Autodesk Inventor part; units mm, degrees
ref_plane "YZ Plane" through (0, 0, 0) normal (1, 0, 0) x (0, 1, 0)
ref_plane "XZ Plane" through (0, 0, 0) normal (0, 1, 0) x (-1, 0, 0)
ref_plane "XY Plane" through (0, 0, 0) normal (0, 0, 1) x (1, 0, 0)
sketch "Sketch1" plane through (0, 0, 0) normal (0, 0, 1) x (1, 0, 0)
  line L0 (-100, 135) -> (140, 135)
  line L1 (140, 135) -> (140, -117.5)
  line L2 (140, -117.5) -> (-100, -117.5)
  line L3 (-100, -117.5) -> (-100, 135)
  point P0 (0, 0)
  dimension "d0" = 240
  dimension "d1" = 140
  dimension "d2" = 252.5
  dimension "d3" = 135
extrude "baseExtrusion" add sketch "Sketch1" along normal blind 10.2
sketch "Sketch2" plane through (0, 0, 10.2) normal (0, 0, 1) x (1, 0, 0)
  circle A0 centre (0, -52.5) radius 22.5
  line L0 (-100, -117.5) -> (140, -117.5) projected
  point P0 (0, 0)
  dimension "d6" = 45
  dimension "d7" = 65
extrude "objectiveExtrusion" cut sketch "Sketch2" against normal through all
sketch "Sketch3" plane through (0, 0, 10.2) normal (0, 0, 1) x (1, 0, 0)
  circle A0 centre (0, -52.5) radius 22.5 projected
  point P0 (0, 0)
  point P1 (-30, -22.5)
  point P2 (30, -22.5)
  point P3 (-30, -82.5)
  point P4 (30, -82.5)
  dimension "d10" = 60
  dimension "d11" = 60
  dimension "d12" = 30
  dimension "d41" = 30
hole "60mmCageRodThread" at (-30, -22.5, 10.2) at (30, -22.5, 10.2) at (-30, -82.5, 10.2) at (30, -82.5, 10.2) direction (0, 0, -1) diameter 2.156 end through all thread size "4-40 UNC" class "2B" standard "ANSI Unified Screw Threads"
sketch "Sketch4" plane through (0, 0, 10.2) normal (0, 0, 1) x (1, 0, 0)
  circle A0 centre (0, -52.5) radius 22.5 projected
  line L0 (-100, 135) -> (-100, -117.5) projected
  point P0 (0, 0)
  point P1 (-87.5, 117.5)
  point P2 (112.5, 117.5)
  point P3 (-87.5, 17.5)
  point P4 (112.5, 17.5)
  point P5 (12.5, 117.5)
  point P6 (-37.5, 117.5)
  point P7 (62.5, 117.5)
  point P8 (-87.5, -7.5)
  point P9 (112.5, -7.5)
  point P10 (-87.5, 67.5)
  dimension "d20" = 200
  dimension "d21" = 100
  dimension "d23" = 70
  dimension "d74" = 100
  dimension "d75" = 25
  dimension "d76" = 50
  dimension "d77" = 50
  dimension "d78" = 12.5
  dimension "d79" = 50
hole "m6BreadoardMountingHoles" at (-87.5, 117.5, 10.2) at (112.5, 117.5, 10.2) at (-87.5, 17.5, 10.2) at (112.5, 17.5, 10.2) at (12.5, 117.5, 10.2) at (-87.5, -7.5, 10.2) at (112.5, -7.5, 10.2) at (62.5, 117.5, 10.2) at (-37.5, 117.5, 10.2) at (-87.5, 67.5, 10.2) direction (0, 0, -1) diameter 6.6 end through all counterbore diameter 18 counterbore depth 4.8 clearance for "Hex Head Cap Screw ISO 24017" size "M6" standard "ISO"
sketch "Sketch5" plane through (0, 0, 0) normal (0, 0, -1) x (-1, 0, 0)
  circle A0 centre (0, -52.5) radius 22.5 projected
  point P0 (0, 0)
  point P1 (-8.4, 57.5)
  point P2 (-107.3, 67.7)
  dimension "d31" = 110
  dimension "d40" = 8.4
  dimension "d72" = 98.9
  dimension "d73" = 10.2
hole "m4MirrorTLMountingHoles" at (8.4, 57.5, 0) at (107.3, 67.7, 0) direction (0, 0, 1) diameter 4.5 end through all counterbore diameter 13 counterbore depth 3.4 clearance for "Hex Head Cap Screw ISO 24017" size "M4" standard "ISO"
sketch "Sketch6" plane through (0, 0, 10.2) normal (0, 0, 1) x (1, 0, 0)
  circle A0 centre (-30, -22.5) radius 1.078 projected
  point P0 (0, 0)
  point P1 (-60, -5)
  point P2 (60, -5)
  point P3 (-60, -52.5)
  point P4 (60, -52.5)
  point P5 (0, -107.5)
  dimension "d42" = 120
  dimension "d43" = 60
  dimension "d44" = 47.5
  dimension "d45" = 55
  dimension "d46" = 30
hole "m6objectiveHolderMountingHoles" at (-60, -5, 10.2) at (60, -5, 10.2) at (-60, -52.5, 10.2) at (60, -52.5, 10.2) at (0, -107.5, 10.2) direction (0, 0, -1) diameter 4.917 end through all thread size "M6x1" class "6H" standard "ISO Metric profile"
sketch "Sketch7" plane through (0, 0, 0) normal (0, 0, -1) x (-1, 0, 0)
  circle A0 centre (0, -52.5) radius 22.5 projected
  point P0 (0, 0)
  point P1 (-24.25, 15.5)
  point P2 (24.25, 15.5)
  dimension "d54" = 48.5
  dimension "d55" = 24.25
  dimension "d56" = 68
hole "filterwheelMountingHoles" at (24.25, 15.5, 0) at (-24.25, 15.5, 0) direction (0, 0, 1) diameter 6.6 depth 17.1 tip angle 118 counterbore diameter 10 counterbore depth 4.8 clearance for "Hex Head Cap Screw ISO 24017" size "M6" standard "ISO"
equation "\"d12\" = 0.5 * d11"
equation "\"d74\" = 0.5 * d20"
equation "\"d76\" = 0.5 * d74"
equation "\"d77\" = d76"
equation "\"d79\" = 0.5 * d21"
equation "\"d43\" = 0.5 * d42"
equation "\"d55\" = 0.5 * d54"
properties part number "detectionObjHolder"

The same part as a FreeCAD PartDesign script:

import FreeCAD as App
import Part
import Sketcher
Q = App.Units.Quantity

doc = App.newDocument("Part")
body = doc.addObject("PartDesign::Body", "Body")

sketch1 = body.newObject("Sketcher::SketchObject", "Sketch")
sketch1.AttachmentSupport = (doc.getObject("XY_Plane"), [""])
sketch1.MapMode = "FlatFace"
sketch1.addGeometry(Part.LineSegment(App.Vector(140, 135, 0), App.Vector(-100, 135, 0)), False)
sketch1.addGeometry(Part.LineSegment(App.Vector(-100, 135, 0), App.Vector(-100, -118, 0)), False)
sketch1.addGeometry(Part.LineSegment(App.Vector(-100, -118, 0), App.Vector(140, -118, 0)), False)
sketch1.addGeometry(Part.LineSegment(App.Vector(140, -118, 0), App.Vector(140, 135, 0)), False)
sketch1.addConstraint(Sketcher.Constraint("Coincident", 0, 2, 1, 1))
sketch1.addConstraint(Sketcher.Constraint("Coincident", 1, 2, 2, 1))
sketch1.addConstraint(Sketcher.Constraint("Coincident", 2, 2, 3, 1))
sketch1.addConstraint(Sketcher.Constraint("Coincident", 3, 2, 0, 1))
sketch1.addConstraint(Sketcher.Constraint("Horizontal", 0))
sketch1.addConstraint(Sketcher.Constraint("Vertical", 1))
sketch1.addConstraint(Sketcher.Constraint("Horizontal", 2))
sketch1.addConstraint(Sketcher.Constraint("Vertical", 3))
sketch1.addConstraint(Sketcher.Constraint("DistanceX", 0, 2, 0, 1, Q("240 mm")))
sketch1.addConstraint(Sketcher.Constraint("DistanceY", 1, 2, 1, 1, Q("252.5 mm")))
sketch1.addConstraint(Sketcher.Constraint("DistanceY", -1, 1, 0, 2, Q("135 mm")))
sketch1.addConstraint(Sketcher.Constraint("DistanceX", -1, 1, 2, 2, Q("140 mm")))
pad1 = body.newObject("PartDesign::Pad", "Pad")
pad1.Profile = sketch1
pad1.Length = 10.2

sketch2 = body.newObject("Sketcher::SketchObject", "Sketch001")
sketch2.AttachmentSupport = (doc.getObject("XY_Plane"), [""])
sketch2.MapMode = "FlatFace"
sketch2.AttachmentOffset = App.Placement(App.Vector(0, 0, 10.2), App.Rotation())
sketch2.addGeometry(Part.Circle(App.Vector(0, -52, 0), App.Vector(0, 0, 1), 22), False)
sketch2.addConstraint(Sketcher.Constraint("PointOnObject", 0, 3, -2))
sketch2.addConstraint(Sketcher.Constraint("Diameter", 0, Q("45 mm")))
sketch2.addConstraint(Sketcher.Constraint("DistanceY", 0, 3, -1, 1, Q("52.5 mm")))
pocket1 = body.newObject("PartDesign::Pocket", "Pocket")
pocket1.Profile = sketch2
pocket1.Type = "ThroughAll"

sketch3 = body.newObject("Sketcher::SketchObject", "Sketch002")
sketch3.AttachmentSupport = (doc.getObject("XY_Plane"), [""])
sketch3.MapMode = "FlatFace"
sketch3.AttachmentOffset = App.Placement(App.Vector(0, 0, 10.2), App.Rotation())
sketch3.addGeometry(Part.Circle(App.Vector(-30, -22.5, 0), App.Vector(0, 0, 1), 1.1), False)
sketch3.addGeometry(Part.Circle(App.Vector(30, -22.5, 0), App.Vector(0, 0, 1), 1.1), False)
sketch3.addGeometry(Part.Circle(App.Vector(-30, -82.5, 0), App.Vector(0, 0, 1), 1.1), False)
sketch3.addGeometry(Part.Circle(App.Vector(30, -82.5, 0), App.Vector(0, 0, 1), 1.1), False)
sketch3.addConstraint(Sketcher.Constraint("Equal", 0, 1))
sketch3.addConstraint(Sketcher.Constraint("Equal", 1, 2))
sketch3.addConstraint(Sketcher.Constraint("Equal", 2, 3))
sketch3.addConstraint(Sketcher.Constraint("Symmetric", 0, 3, 1, 3, -2))
sketch3.addConstraint(Sketcher.Constraint("Symmetric", 2, 3, 3, 3, -2))
sketch3.addConstraint(Sketcher.Constraint("Vertical", 0, 3, 2, 3))
sketch3.addConstraint(Sketcher.Constraint("Diameter", 0, Q("2.156 mm")))
sketch3.addConstraint(Sketcher.Constraint("DistanceX", 0, 3, -1, 1, Q("30 mm")))
sketch3.addConstraint(Sketcher.Constraint("DistanceY", 2, 3, 0, 3, Q("60 mm")))
sketch3.addConstraint(Sketcher.Constraint("DistanceY", 0, 3, -1, 1, Q("22.5 mm")))
doc.recompute()
hole = body.newObject("PartDesign::Hole", "Hole")
hole.Profile = sketch3
hole.ThreadType = "None"
hole.Diameter = 2.156
hole.DepthType = "ThroughAll"

sketch4 = body.newObject("Sketcher::SketchObject", "Sketch003")
sketch4.AttachmentSupport = (doc.getObject("XY_Plane"), [""])
sketch4.MapMode = "FlatFace"
sketch4.AttachmentOffset = App.Placement(App.Vector(0, 0, 10.2), App.Rotation())
sketch4.addGeometry(Part.Circle(App.Vector(-87.5, 117.5, 0), App.Vector(0, 0, 1), 3.3), False)
sketch4.addGeometry(Part.Circle(App.Vector(112.5, 117.5, 0), App.Vector(0, 0, 1), 3.3), False)
sketch4.addGeometry(Part.Circle(App.Vector(-87.5, 17.5, 0), App.Vector(0, 0, 1), 3.3), False)
sketch4.addGeometry(Part.Circle(App.Vector(112.5, 17.5, 0), App.Vector(0, 0, 1), 3.3), False)
sketch4.addGeometry(Part.Circle(App.Vector(12.5, 117.5, 0), App.Vector(0, 0, 1), 3.3), False)
sketch4.addGeometry(Part.Circle(App.Vector(-87.5, -7.5, 0), App.Vector(0, 0, 1), 3.3), False)
sketch4.addGeometry(Part.Circle(App.Vector(112.5, -7.5, 0), App.Vector(0, 0, 1), 3.3), False)
sketch4.addGeometry(Part.Circle(App.Vector(62.5, 117.5, 0), App.Vector(0, 0, 1), 3.3), False)
sketch4.addGeometry(Part.Circle(App.Vector(-37.5, 117.5, 0), App.Vector(0, 0, 1), 3.3), False)
sketch4.addGeometry(Part.Circle(App.Vector(-87.5, 67.5, 0), App.Vector(0, 0, 1), 3.3), False)
sketch4.addConstraint(Sketcher.Constraint("Equal", 0, 1))
sketch4.addConstraint(Sketcher.Constraint("Equal", 1, 2))
sketch4.addConstraint(Sketcher.Constraint("Equal", 2, 3))
sketch4.addConstraint(Sketcher.Constraint("Equal", 3, 4))
sketch4.addConstraint(Sketcher.Constraint("Equal", 4, 5))
sketch4.addConstraint(Sketcher.Constraint("Equal", 5, 6))
sketch4.addConstraint(Sketcher.Constraint("Equal", 6, 7))
sketch4.addConstraint(Sketcher.Constraint("Equal", 7, 8))
sketch4.addConstraint(Sketcher.Constraint("Equal", 8, 9))
sketch4.addConstraint(Sketcher.Constraint("Horizontal", 0, 3, 1, 3))
sketch4.addConstraint(Sketcher.Constraint("Horizontal", 2, 3, 3, 3))
sketch4.addConstraint(Sketcher.Constraint("Horizontal", 1, 3, 4, 3))
sketch4.addConstraint(Sketcher.Constraint("Horizontal", 5, 3, 6, 3))
sketch4.addConstraint(Sketcher.Constraint("Horizontal", 4, 3, 7, 3))
sketch4.addConstraint(Sketcher.Constraint("Horizontal", 7, 3, 8, 3))
sketch4.addConstraint(Sketcher.Constraint("Vertical", 0, 3, 2, 3))
sketch4.addConstraint(Sketcher.Constraint("Vertical", 1, 3, 3, 3))
sketch4.addConstraint(Sketcher.Constraint("Vertical", 2, 3, 5, 3))
sketch4.addConstraint(Sketcher.Constraint("Vertical", 3, 3, 6, 3))
sketch4.addConstraint(Sketcher.Constraint("Vertical", 5, 3, 9, 3))
sketch4.addConstraint(Sketcher.Constraint("Diameter", 0, Q("6.6 mm")))
sketch4.addConstraint(Sketcher.Constraint("DistanceX", 0, 3, 1, 3, Q("200 mm")))
sketch4.addConstraint(Sketcher.Constraint("DistanceY", 2, 3, 0, 3, Q("100 mm")))
sketch4.addConstraint(Sketcher.Constraint("DistanceX", 0, 3, 4, 3, Q("100 mm")))
sketch4.addConstraint(Sketcher.Constraint("DistanceY", 5, 3, 2, 3, Q("25 mm")))
sketch4.addConstraint(Sketcher.Constraint("DistanceX", 7, 3, 1, 3, Q("50 mm")))
sketch4.addConstraint(Sketcher.Constraint("DistanceX", 0, 3, 8, 3, Q("50 mm")))
sketch4.addConstraint(Sketcher.Constraint("DistanceY", 9, 3, 0, 3, Q("50 mm")))
sketch4.addConstraint(Sketcher.Constraint("DistanceX", 0, 3, -1, 1, Q("87.5 mm")))
sketch4.addConstraint(Sketcher.Constraint("DistanceY", -1, 1, 0, 3, Q("117.5 mm")))
doc.recompute()
hole2 = body.newObject("PartDesign::Hole", "Hole001")
hole2.Profile = sketch4
hole2.ThreadType = "None"
hole2.Diameter = 6.6
hole2.DepthType = "ThroughAll"
hole2.HoleCutType = "Counterbore"
hole2.HoleCutDiameter = 18
hole2.HoleCutDepth = 4.8

sketch5 = body.newObject("Sketcher::SketchObject", "Sketch004")
sketch5.AttachmentSupport = (doc.getObject("XY_Plane"), [""])
sketch5.MapMode = "FlatFace"
sketch5.addGeometry(Part.Circle(App.Vector(8.4, 57.5, 0), App.Vector(0, 0, 1), 2.2), False)
sketch5.addGeometry(Part.Circle(App.Vector(107.3, 67.7, 0), App.Vector(0, 0, 1), 2.2), False)
sketch5.addConstraint(Sketcher.Constraint("Equal", 0, 1))
sketch5.addConstraint(Sketcher.Constraint("Diameter", 0, Q("4.5 mm")))
sketch5.addConstraint(Sketcher.Constraint("DistanceX", -1, 1, 0, 3, Q("8.4 mm")))
sketch5.addConstraint(Sketcher.Constraint("DistanceY", -1, 1, 0, 3, Q("57.5 mm")))
sketch5.addConstraint(Sketcher.Constraint("DistanceX", -1, 1, 1, 3, Q("107.3 mm")))
sketch5.addConstraint(Sketcher.Constraint("DistanceY", -1, 1, 1, 3, Q("67.7 mm")))
doc.recompute()
hole3 = body.newObject("PartDesign::Hole", "Hole002")
hole3.Profile = sketch5
hole3.ThreadType = "None"
hole3.Diameter = 4.5
hole3.DepthType = "ThroughAll"
hole3.HoleCutType = "Counterbore"
hole3.HoleCutDiameter = 13
hole3.HoleCutDepth = 3.4
hole3.Reversed = True

sketch6 = body.newObject("Sketcher::SketchObject", "Sketch005")
sketch6.AttachmentSupport = (doc.getObject("XY_Plane"), [""])
sketch6.MapMode = "FlatFace"
sketch6.AttachmentOffset = App.Placement(App.Vector(0, 0, 10.2), App.Rotation())
sketch6.addGeometry(Part.Circle(App.Vector(-60, -5, 0), App.Vector(0, 0, 1), 2.5), False)
sketch6.addGeometry(Part.Circle(App.Vector(60, -5, 0), App.Vector(0, 0, 1), 2.5), False)
sketch6.addGeometry(Part.Circle(App.Vector(-60, -52.5, 0), App.Vector(0, 0, 1), 2.5), False)
sketch6.addGeometry(Part.Circle(App.Vector(60, -52.5, 0), App.Vector(0, 0, 1), 2.5), False)
sketch6.addGeometry(Part.Circle(App.Vector(0, -107.5, 0), App.Vector(0, 0, 1), 2.5), False)
sketch6.addConstraint(Sketcher.Constraint("Equal", 0, 1))
sketch6.addConstraint(Sketcher.Constraint("Equal", 1, 2))
sketch6.addConstraint(Sketcher.Constraint("Equal", 2, 3))
sketch6.addConstraint(Sketcher.Constraint("Equal", 3, 4))
sketch6.addConstraint(Sketcher.Constraint("Symmetric", 0, 3, 1, 3, -2))
sketch6.addConstraint(Sketcher.Constraint("Symmetric", 2, 3, 3, 3, -2))
sketch6.addConstraint(Sketcher.Constraint("PointOnObject", 4, 3, -2))
sketch6.addConstraint(Sketcher.Constraint("Vertical", 0, 3, 2, 3))
sketch6.addConstraint(Sketcher.Constraint("Diameter", 0, Q("4.917 mm")))
sketch6.addConstraint(Sketcher.Constraint("DistanceX", 0, 3, -1, 1, Q("60 mm")))
sketch6.addConstraint(Sketcher.Constraint("DistanceY", 0, 3, -1, 1, Q("5 mm")))
sketch6.addConstraint(Sketcher.Constraint("DistanceY", 4, 3, 2, 3, Q("55 mm")))
sketch6.addConstraint(Sketcher.Constraint("DistanceY", 2, 3, -1, 1, Q("52.5 mm")))
doc.recompute()
hole4 = body.newObject("PartDesign::Hole", "Hole003")
hole4.Profile = sketch6
hole4.ThreadType = "None"
hole4.Diameter = 4.917
hole4.DepthType = "ThroughAll"

sketch7 = body.newObject("Sketcher::SketchObject", "Sketch006")
sketch7.AttachmentSupport = (doc.getObject("XY_Plane"), [""])
sketch7.MapMode = "FlatFace"
sketch7.addGeometry(Part.Circle(App.Vector(24.2, 15.5, 0), App.Vector(0, 0, 1), 3.3), False)
sketch7.addGeometry(Part.Circle(App.Vector(-24.2, 15.5, 0), App.Vector(0, 0, 1), 3.3), False)
sketch7.addConstraint(Sketcher.Constraint("Equal", 0, 1))
sketch7.addConstraint(Sketcher.Constraint("Symmetric", 0, 3, 1, 3, -2))
sketch7.addConstraint(Sketcher.Constraint("Diameter", 0, Q("6.6 mm")))
sketch7.addConstraint(Sketcher.Constraint("DistanceY", -1, 1, 0, 3, Q("15.5 mm")))
sketch7.addConstraint(Sketcher.Constraint("DistanceX", 1, 3, 0, 3, Q("48.5 mm")))
doc.recompute()
hole5 = body.newObject("PartDesign::Hole", "Hole004")
hole5.Profile = sketch7
hole5.ThreadType = "None"
hole5.Diameter = 6.6
hole5.DepthType = "Dimension"
hole5.Depth = 17.1
hole5.DrillPoint = "Angled"
hole5.DrillPointAngle = 118
hole5.HoleCutType = "Counterbore"
hole5.HoleCutDiameter = 10
hole5.HoleCutDepth = 4.8
hole5.Reversed = True

doc.recompute()
